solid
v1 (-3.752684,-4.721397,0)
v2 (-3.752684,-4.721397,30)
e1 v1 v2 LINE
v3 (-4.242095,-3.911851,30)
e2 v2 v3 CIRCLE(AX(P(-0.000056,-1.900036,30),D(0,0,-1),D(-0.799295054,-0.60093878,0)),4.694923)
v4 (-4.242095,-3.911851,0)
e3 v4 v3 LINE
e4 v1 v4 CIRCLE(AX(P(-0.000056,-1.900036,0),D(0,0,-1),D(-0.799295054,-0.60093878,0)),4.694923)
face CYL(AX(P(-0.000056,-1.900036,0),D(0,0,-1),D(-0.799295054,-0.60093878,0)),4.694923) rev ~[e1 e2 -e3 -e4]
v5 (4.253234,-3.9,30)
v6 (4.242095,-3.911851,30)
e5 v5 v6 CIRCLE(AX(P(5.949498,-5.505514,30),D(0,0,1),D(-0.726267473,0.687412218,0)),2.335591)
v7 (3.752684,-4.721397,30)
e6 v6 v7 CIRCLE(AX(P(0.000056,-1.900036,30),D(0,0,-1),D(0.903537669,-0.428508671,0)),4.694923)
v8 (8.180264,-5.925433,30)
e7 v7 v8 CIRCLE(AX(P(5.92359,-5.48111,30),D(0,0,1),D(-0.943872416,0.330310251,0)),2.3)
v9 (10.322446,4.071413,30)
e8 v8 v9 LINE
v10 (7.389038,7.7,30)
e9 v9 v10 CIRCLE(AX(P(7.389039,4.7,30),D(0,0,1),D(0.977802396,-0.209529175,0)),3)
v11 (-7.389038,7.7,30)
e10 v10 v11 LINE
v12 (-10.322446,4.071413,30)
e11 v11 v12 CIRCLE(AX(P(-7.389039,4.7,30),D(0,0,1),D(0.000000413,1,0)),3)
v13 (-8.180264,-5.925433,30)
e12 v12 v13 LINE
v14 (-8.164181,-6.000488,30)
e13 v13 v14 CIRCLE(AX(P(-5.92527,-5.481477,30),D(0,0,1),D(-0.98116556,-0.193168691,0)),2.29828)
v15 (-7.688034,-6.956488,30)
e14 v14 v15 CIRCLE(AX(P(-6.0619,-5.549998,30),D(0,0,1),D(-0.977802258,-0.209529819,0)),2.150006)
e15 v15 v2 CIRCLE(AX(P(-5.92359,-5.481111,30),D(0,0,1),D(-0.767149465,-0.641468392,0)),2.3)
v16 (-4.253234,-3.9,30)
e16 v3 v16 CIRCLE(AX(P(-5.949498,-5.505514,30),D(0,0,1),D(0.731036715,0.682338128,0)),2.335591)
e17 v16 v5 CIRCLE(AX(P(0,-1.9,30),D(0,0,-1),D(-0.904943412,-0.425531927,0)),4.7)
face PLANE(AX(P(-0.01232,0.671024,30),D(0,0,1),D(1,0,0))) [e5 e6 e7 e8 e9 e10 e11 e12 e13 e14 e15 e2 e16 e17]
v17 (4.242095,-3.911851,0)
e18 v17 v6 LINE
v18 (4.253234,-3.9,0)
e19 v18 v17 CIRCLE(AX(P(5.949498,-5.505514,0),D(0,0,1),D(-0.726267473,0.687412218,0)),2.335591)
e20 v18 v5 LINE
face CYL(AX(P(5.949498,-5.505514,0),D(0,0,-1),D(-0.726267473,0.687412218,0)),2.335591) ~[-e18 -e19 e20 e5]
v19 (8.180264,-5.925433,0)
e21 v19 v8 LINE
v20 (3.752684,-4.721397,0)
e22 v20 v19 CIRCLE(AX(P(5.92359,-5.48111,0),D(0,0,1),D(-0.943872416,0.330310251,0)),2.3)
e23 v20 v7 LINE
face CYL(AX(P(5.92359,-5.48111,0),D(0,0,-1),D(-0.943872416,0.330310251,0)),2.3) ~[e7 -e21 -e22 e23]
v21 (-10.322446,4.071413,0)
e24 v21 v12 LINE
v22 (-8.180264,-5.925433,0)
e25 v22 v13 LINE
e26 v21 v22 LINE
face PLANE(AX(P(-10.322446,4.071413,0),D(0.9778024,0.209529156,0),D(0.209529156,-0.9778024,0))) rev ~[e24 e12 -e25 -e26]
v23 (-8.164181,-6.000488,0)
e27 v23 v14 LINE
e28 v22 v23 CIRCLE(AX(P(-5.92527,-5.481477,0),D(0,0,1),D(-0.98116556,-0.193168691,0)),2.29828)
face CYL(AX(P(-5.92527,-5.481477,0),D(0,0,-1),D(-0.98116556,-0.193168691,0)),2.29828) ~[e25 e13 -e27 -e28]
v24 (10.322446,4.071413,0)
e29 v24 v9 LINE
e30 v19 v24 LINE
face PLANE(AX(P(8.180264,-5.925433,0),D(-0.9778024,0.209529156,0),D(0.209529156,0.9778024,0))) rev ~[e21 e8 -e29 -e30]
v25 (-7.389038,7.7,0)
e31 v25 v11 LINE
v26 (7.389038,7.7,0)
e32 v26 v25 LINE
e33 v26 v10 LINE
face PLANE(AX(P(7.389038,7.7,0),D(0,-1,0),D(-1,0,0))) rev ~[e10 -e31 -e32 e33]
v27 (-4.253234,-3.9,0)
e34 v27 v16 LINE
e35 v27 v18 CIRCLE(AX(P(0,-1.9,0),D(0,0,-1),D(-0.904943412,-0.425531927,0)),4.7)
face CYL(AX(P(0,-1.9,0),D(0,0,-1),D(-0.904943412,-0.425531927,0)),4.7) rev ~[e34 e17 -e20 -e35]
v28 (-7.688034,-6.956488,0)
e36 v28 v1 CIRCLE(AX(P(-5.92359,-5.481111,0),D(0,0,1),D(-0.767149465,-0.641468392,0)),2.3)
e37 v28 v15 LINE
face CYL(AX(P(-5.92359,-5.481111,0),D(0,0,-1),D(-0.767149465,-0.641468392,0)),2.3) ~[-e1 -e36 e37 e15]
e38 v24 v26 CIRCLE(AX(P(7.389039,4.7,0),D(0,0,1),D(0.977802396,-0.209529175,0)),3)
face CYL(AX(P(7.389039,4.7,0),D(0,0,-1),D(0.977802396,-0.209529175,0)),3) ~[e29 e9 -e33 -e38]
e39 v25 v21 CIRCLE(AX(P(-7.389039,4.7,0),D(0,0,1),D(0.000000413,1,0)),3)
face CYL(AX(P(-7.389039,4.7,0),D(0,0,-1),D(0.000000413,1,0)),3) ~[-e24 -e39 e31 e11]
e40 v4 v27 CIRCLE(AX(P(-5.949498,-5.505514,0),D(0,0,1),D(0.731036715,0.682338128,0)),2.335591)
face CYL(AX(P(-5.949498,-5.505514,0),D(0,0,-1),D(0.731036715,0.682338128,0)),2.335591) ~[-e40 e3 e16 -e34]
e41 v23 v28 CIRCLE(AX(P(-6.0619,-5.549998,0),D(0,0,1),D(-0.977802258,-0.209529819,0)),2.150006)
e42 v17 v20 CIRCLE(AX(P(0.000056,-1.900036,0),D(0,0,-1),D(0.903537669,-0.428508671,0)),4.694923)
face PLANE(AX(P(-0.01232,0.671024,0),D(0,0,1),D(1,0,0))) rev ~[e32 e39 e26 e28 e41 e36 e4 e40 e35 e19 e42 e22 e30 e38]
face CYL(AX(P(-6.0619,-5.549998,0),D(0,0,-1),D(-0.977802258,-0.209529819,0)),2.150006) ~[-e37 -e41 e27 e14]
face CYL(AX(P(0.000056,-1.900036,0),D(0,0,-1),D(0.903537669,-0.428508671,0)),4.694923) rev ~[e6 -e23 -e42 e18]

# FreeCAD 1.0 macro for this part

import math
import FreeCAD as App
import Part
import Sketcher

V = App.Vector

doc = App.newDocument("Part")
params = doc.addObject("Spreadsheet::Sheet", "Params")
for row, (alias, value) in enumerate([
    ("sketch1_radius", "3 mm"),
    ("sketch1_radius2", "3 mm"),
    ("sketch1_radius3", "2.3 mm"),
    ("sketch1_radius4", "2.3 mm"),
    ("sketch1_radius5", "4.7 mm"),
    ("pad1_length", "30 mm"),
], start=1):
    params.set(f"A{row}", alias)
    params.set(f"B{row}", "=" + value)
    params.setAlias(f"B{row}", alias)

body = doc.addObject("PartDesign::Body", "Body")

# Sketch on XY plane
sketch1 = body.newObject("Sketcher::SketchObject", "Sketch")
sketch1.AttachmentSupport = (doc.getObject("XY_Plane"), [""])
sketch1.MapMode = "FlatFace"
sketch1.addGeometry(Part.ArcOfCircle(Part.Circle(V(5.92359, -5.48111, 0), V(0, 0, 1), 2.3), math.radians(160.712392), math.radians(348.861359)), False)
sketch1.addGeometry(Part.LineSegment(V(8.180264, -5.925433, 0), V(10.322446, 4.071413, 0)), False)
sketch1.addGeometry(Part.ArcOfCircle(Part.Circle(V(7.389039, 4.7, 0), V(0, 0, 1), 3), math.radians(-12.094762), math.radians(90.000024)), False)
sketch1.addGeometry(Part.LineSegment(V(7.389038, 7.7, 0), V(-7.389038, 7.7, 0)), False)
sketch1.addGeometry(Part.ArcOfCircle(Part.Circle(V(-7.389039, 4.7, 0), V(0, 0, 1), 3), math.radians(89.999976), math.radians(192.094762)), False)
sketch1.addGeometry(Part.LineSegment(V(-10.322446, 4.071413, 0), V(-8.180264, -5.925433, 0)), False)
sketch1.addGeometry(Part.ArcOfCircle(Part.Circle(V(-5.92527, -5.481477, 0), V(0, 0, 1), 2.29828), math.radians(-168.862237), math.radians(-166.948562)), False)
sketch1.addGeometry(Part.ArcOfCircle(Part.Circle(V(-6.0619, -5.549998, 0), V(0, 0, 1), 2.150006), math.radians(-167.9052), math.radians(-139.142524)), False)
sketch1.addGeometry(Part.ArcOfCircle(Part.Circle(V(-5.92359, -5.481111, 0), V(0, 0, 1), 2.3), math.radians(-140.098599), math.radians(19.287614)), False)
sketch1.addGeometry(Part.ArcOfCircle(Part.Circle(V(-0.000056, -1.900036, 0), V(0, 0, 1), 4.694923), math.radians(-154.627046), math.radians(-143.062838)), False)
sketch1.addGeometry(Part.ArcOfCircle(Part.Circle(V(-5.949498, -5.505514, 0), V(0, 0, 1), 2.335591), math.radians(43.026624), math.radians(43.425611)), False)
sketch1.addGeometry(Part.ArcOfCircle(Part.Circle(V(0, -1.9, 0), V(0, 0, 1), 4.7), math.radians(-25.184337), math.radians(205.184337)), False)
sketch1.addGeometry(Part.ArcOfCircle(Part.Circle(V(5.949498, -5.505514, 0), V(0, 0, 1), 2.335591), math.radians(136.574389), math.radians(136.973376)), False)
sketch1.addGeometry(Part.ArcOfCircle(Part.Circle(V(0.000056, -1.900036, 0), V(0, 0, 1), 4.694923), math.radians(-36.937162), math.radians(-25.372954)), False)
sketch1.addConstraint(Sketcher.Constraint("Coincident", 0, 2, 1, 1))
sketch1.addConstraint(Sketcher.Constraint("Coincident", 1, 2, 2, 1))
sketch1.addConstraint(Sketcher.Constraint("Coincident", 2, 2, 3, 1))
sketch1.addConstraint(Sketcher.Constraint("Coincident", 3, 2, 4, 1))
sketch1.addConstraint(Sketcher.Constraint("Coincident", 4, 2, 5, 1))
sketch1.addConstraint(Sketcher.Constraint("Coincident", 5, 2, 6, 1))
sketch1.addConstraint(Sketcher.Constraint("Coincident", 6, 2, 7, 1))
sketch1.addConstraint(Sketcher.Constraint("Coincident", 7, 2, 8, 1))
sketch1.addConstraint(Sketcher.Constraint("Coincident", 8, 2, 9, 2))
sketch1.addConstraint(Sketcher.Constraint("Coincident", 9, 1, 10, 1))
sketch1.addConstraint(Sketcher.Constraint("Coincident", 10, 2, 11, 2))
sketch1.addConstraint(Sketcher.Constraint("Coincident", 11, 1, 12, 1))
sketch1.addConstraint(Sketcher.Constraint("Coincident", 12, 2, 13, 2))
sketch1.addConstraint(Sketcher.Constraint("Coincident", 13, 1, 0, 1))
sketch1.addConstraint(Sketcher.Constraint("Horizontal", 3))
sketch1.addConstraint(Sketcher.Constraint("PointOnObject", 11, 3, -2))
sketch1.addConstraint(Sketcher.Constraint("Radius", 2, 3.0))
sketch1.addConstraint(Sketcher.Constraint("Radius", 4, 3.0))
sketch1.addConstraint(Sketcher.Constraint("Radius", 0, 2.3))
sketch1.addConstraint(Sketcher.Constraint("Radius", 8, 2.3))
sketch1.addConstraint(Sketcher.Constraint("Radius", 11, 4.7))
sketch1.addConstraint(Sketcher.Constraint("DistanceY", 11, 1, 11, 3, 2.0))
sketch1.addConstraint(Sketcher.Constraint("DistanceY", -1, 1, 2, 3, 4.7))
sketch1.addConstraint(Sketcher.Constraint("DistanceY", 11, 3, -1, 1, 1.9))
sketch1.addConstraint(Sketcher.Constraint("DistanceY", 10, 2, -1, 1, 3.9))
sketch1.addConstraint(Sketcher.Constraint("Radius", 6, 2.29828))
sketch1.addConstraint(Sketcher.Constraint("Radius", 10, 2.335591))
sketch1.addConstraint(Sketcher.Constraint("Radius", 12, 2.335591))
sketch1.addConstraint(Sketcher.Constraint("Radius", 7, 2.150006))
sketch1.addConstraint(Sketcher.Constraint("Radius", 9, 4.694923))
sketch1.addConstraint(Sketcher.Constraint("Radius", 13, 4.694923))
sketch1.addConstraint(Sketcher.Constraint("DistanceY", 7, 2, 6, 2, 0.956))
sketch1.addConstraint(Sketcher.Constraint("DistanceX", 7, 3, -1, 1, 6.0619))
sketch1.addConstraint(Sketcher.Constraint("DistanceX", 7, 3, 10, 3, 0.112402))
sketch1.addConstraint(Sketcher.Constraint("DistanceY", 7, 3, 8, 2, 0.828601))
sketch1.addConstraint(Sketcher.Constraint("Distance", 1, 10.22379))
sketch1.addConstraint(Sketcher.Constraint("Distance", 5, 10.22379))
sketch1.addConstraint(Sketcher.Constraint("DistanceX", 3, 2, 3, 1, 14.778076))
sketch1.addConstraint(Sketcher.Constraint("DistanceX", -1, 1, 0, 3, 5.92359))
sketch1.addConstraint(Sketcher.Constraint("DistanceY", 0, 3, -1, 1, 5.48111))
sketch1.addConstraint(Sketcher.Constraint("DistanceX", -1, 1, 2, 3, 7.389039))
sketch1.addConstraint(Sketcher.Constraint("DistanceX", 4, 3, -1, 1, 7.389039))
sketch1.addConstraint(Sketcher.Constraint("DistanceX", 6, 3, -1, 1, 5.92527))
sketch1.addConstraint(Sketcher.Constraint("DistanceX", 8, 3, -1, 1, 5.92359))
sketch1.addConstraint(Sketcher.Constraint("DistanceY", 8, 3, -1, 1, 5.481111))
sketch1.addConstraint(Sketcher.Constraint("DistanceX", -1, 1, 2, 2, 7.389038))
sketch1.addConstraint(Sketcher.Constraint("DistanceX", 6, 2, -1, 1, 8.164181))
sketch1.addConstraint(Sketcher.Constraint("DistanceY", 9, 1, -1, 1, 3.911851))
sketch1.addConstraint(Sketcher.Constraint("DistanceY", 12, 2, -1, 1, 3.911851))
sketch1.addConstraint(Sketcher.Constraint("DistanceX", 12, 3, 2, 3, 1.439541))
sketch1.addConstraint(Sketcher.Constraint("DistanceX", 9, 3, 13, 3, 0.000111))
sketch1.addConstraint(Sketcher.Constraint("DistanceY", 0, 2, 12, 3, 0.419919))
sketch1.addConstraint(Sketcher.Constraint("DistanceX", 4, 2, 3, 2, 2.933408))
sketch1.setExpression("Constraints[16]", "Params.sketch1_radius")
sketch1.setExpression("Constraints[17]", "Params.sketch1_radius2")
sketch1.setExpression("Constraints[18]", "Params.sketch1_radius3")
sketch1.setExpression("Constraints[19]", "Params.sketch1_radius4")
sketch1.setExpression("Constraints[20]", "Params.sketch1_radius5")
pad1 = body.newObject("PartDesign::Pad", "Pad")
pad1.Profile = sketch1
pad1.setExpression("Length", "Params.pad1_length")

doc.recompute()
